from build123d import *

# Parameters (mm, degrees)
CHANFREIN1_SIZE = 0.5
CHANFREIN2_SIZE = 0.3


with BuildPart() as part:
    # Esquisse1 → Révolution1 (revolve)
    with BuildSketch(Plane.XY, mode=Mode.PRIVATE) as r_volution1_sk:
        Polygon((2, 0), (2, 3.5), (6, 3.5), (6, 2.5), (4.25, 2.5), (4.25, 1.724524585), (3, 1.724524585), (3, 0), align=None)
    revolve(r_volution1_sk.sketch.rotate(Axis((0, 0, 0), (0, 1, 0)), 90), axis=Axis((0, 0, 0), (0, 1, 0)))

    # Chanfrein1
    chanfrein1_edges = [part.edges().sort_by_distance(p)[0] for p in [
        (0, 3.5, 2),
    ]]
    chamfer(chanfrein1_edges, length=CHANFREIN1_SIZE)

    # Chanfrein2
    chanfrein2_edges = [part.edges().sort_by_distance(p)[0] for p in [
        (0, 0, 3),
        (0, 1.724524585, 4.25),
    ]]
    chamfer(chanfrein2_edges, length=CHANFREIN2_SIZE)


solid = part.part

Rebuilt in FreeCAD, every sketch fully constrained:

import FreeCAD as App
import Part
import Sketcher

V = App.Vector


def edges_at(feature, points):
    """Names of the edges that pass closest to the given points."""
    edges = feature.Shape.Edges
    near = lambda p: min(range(len(edges)), key=lambda i: edges[i].distToShape(Part.Vertex(*p))[0])
    return sorted({f"Edge{near(p) + 1}" for p in points})

doc = App.newDocument("Part")
params = doc.addObject("Spreadsheet::Sheet", "Params")
for row, (alias, value) in enumerate([
    ("sketch1_width", "1 mm"),
    ("sketch1_width2", "4 mm"),
    ("sketch1_height", "3.5 mm"),
    ("sketch1_width3", "1.25 mm"),
    ("revolution_angle", "360 deg"),
    ("chamfer_size", "0.5 mm"),
    ("chamfer2_size", "0.3 mm"),
], start=1):
    params.set(f"A{row}", alias)
    params.set(f"B{row}", "=" + value)
    params.setAlias(f"B{row}", alias)

body = doc.addObject("PartDesign::Body", "Body")

# Sketch on XY plane
sketch1 = body.newObject("Sketcher::SketchObject", "Sketch")
sketch1.AttachmentSupport = (doc.getObject("XY_Plane"), [""])
sketch1.MapMode = "FlatFace"
sketch1.addGeometry([
    Part.LineSegment(V(2, 3.5, 0), V(2, 0, 0)),  # 0
    Part.LineSegment(V(2, 0, 0), V(3, 0, 0)),  # 1
    Part.LineSegment(V(3, 0, 0), V(3, 1.7, 0)),  # 2
    Part.LineSegment(V(3, 1.7, 0), V(4.2, 1.7, 0)),  # 3
    Part.LineSegment(V(4.2, 1.7, 0), V(4.2, 2.5, 0)),  # 4
    Part.LineSegment(V(4.2, 2.5, 0), V(6, 2.5, 0)),  # 5
    Part.LineSegment(V(6, 2.5, 0), V(6, 3.5, 0)),  # 6
    Part.LineSegment(V(6, 3.5, 0), V(2, 3.5, 0)),  # 7
], False)
sketch1.addConstraint([
    Sketcher.Constraint("Coincident", 0, 2, 1, 1),
    Sketcher.Constraint("Coincident", 1, 2, 2, 1),
    Sketcher.Constraint("Coincident", 2, 2, 3, 1),
    Sketcher.Constraint("Coincident", 3, 2, 4, 1),
    Sketcher.Constraint("Coincident", 4, 2, 5, 1),
    Sketcher.Constraint("Coincident", 5, 2, 6, 1),
    Sketcher.Constraint("Coincident", 6, 2, 7, 1),
    Sketcher.Constraint("Coincident", 7, 2, 0, 1),
    Sketcher.Constraint("Vertical", 0),
    Sketcher.Constraint("Horizontal", 1),
    Sketcher.Constraint("Vertical", 2),
    Sketcher.Constraint("Horizontal", 3),
    Sketcher.Constraint("Vertical", 4),
    Sketcher.Constraint("Horizontal", 5),
    Sketcher.Constraint("Vertical", 6),
    Sketcher.Constraint("Horizontal", 7),
    Sketcher.Constraint("PointOnObject", 0, 2, -1),
    Sketcher.Constraint("Equal", 1, 6),
    Sketcher.Constraint("DistanceX", 1, 1, 1, 2, 1.0),
    Sketcher.Constraint("DistanceX", 7, 2, 7, 1, 4.0),
    Sketcher.Constraint("DistanceY", 0, 2, 0, 1, 3.5),
    Sketcher.Constraint("DistanceX", -1, 1, 0, 2, 2.0),
    Sketcher.Constraint("DistanceX", 3, 1, 3, 2, 1.25),
    Sketcher.Constraint("DistanceY", 2, 1, 2, 2, 1.724525),
])
sketch1.setExpression("Constraints[18]", "Params.sketch1_width")
sketch1.setExpression("Constraints[19]", "Params.sketch1_width2")
sketch1.setExpression("Constraints[20]", "Params.sketch1_height")
sketch1.setExpression("Constraints[22]", "Params.sketch1_width3")
revolution = body.newObject("PartDesign::Revolution", "Revolution")
revolution.Profile = sketch1
revolution.ReferenceAxis = (sketch1, ["V_Axis"])
revolution.setExpression("Angle", "Params.revolution_angle")
doc.recompute()

chamfer = body.newObject("PartDesign::Chamfer", "Chamfer")
chamfer.Base = (revolution, edges_at(revolution, [(0, 3.5, 2)]))
chamfer.setExpression("Size", "Params.chamfer_size")
doc.recompute()

chamfer2 = body.newObject("PartDesign::Chamfer", "Chamfer001")
chamfer2.Base = (chamfer, edges_at(chamfer, [(0, 0, 3), (0, 1.725, 4.25)]))
chamfer2.setExpression("Size", "Params.chamfer2_size")

doc.recompute()
